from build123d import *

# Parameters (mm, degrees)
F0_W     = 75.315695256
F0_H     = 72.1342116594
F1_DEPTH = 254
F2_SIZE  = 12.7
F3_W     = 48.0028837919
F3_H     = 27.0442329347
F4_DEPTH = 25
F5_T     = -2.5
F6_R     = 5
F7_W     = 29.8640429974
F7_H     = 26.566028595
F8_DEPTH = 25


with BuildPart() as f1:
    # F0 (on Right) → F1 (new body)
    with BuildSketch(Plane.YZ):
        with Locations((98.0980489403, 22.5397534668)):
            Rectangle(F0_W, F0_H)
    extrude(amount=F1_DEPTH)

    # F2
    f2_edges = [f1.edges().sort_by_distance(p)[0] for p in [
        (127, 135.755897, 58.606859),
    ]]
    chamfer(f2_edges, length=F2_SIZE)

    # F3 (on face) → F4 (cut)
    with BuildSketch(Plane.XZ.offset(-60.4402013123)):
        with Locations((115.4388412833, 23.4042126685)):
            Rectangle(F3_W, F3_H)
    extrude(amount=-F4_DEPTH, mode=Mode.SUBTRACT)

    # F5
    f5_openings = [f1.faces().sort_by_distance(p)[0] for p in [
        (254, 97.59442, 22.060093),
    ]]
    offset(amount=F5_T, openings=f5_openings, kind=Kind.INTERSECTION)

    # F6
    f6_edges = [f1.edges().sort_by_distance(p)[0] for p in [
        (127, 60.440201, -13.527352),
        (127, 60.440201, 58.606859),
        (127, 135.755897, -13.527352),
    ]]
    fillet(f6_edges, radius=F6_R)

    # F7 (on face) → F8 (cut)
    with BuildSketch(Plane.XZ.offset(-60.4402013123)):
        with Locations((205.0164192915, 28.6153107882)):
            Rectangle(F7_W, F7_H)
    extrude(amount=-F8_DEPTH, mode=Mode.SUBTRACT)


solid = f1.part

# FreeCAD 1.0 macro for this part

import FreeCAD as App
import Part
import Sketcher

V = App.Vector
Q = App.Units.Quantity


def edges_at(feature, points):
    """Names of the edges that pass closest to the given points."""
    edges = feature.Shape.Edges
    near = lambda p: min(range(len(edges)), key=lambda i: edges[i].distToShape(Part.Vertex(*p))[0])
    return sorted({f"Edge{near(p) + 1}" for p in points})


def faces_at(feature, points):
    """Names of the faces that lie closest to the given points."""
    faces = feature.Shape.Faces
    near = lambda p: min(range(len(faces)), key=lambda i: faces[i].distToShape(Part.Vertex(*p))[0])
    return sorted({f"Face{near(p) + 1}" for p in points})

doc = App.newDocument("Part")
body = doc.addObject("PartDesign::Body", "Body")

sketch1 = doc.addObject("Sketcher::SketchObject", "Sketch")
body.addObject(sketch1)
sketch1.AttachmentSupport = (doc.YZ_Plane, [""])
sketch1.MapMode = "FlatFace"
sketch1.addGeometry([
    Part.LineSegment(V(60.440201, 58.606859, 0), V(60.440201, -13.527352, 0)),
    Part.LineSegment(V(60.440201, -13.527352, 0), V(135.755897, -13.527352, 0)),
    Part.LineSegment(V(135.755897, -13.527352, 0), V(135.755897, 58.606859, 0)),
    Part.LineSegment(V(135.755897, 58.606859, 0), V(60.440201, 58.606859, 0)),
], False)
sketch1.addConstraint([
    Sketcher.Constraint("Coincident", 0, 2, 1, 1),
    Sketcher.Constraint("Coincident", 1, 2, 2, 1),
    Sketcher.Constraint("Coincident", 2, 2, 3, 1),
    Sketcher.Constraint("Coincident", 3, 2, 0, 1),
    Sketcher.Constraint("Vertical", 0),
    Sketcher.Constraint("Horizontal", 1),
    Sketcher.Constraint("Vertical", 2),
    Sketcher.Constraint("Horizontal", 3),
    Sketcher.Constraint("DistanceY", 0, 2, 0, 1, Q("72.134212 mm")),
    Sketcher.Constraint("DistanceX", -1, 1, 0, 2, Q("60.440201 mm")),
    Sketcher.Constraint("DistanceX", 1, 1, 1, 2, Q("75.315695 mm")),
    Sketcher.Constraint("DistanceY", -1, 1, 2, 2, Q("58.606859 mm")),
])
pad1 = doc.addObject("PartDesign::Pad", "Pad")
body.addObject(pad1)
pad1.Profile = sketch1
pad1.Length = 254
doc.recompute()

chamfer = doc.addObject("PartDesign::Chamfer", "Chamfer")
body.addObject(chamfer)
chamfer.Base = (pad1, edges_at(pad1, [(127, 135.756, 58.607)]))
chamfer.Size = 12.7

sketch2 = doc.addObject("Sketcher::SketchObject", "Sketch001")
body.addObject(sketch2)
sketch2.AttachmentSupport = (doc.XZ_Plane, [""])
sketch2.MapMode = "FlatFace"
sketch2.AttachmentOffset = App.Placement(V(0, 0, -60.440201), App.Rotation())
sketch2.addGeometry([
    Part.LineSegment(V(91.437399, 36.926329, 0), V(91.437399, 9.882096, 0)),
    Part.LineSegment(V(91.437399, 9.882096, 0), V(139.440283, 9.882096, 0)),
    Part.LineSegment(V(139.440283, 9.882096, 0), V(139.440283, 36.926329, 0)),
    Part.LineSegment(V(139.440283, 36.926329, 0), V(91.437399, 36.926329, 0)),
], False)
sketch2.addConstraint([
    Sketcher.Constraint("Coincident", 0, 2, 1, 1),
    Sketcher.Constraint("Coincident", 1, 2, 2, 1),
    Sketcher.Constraint("Coincident", 2, 2, 3, 1),
    Sketcher.Constraint("Coincident", 3, 2, 0, 1),
    Sketcher.Constraint("Vertical", 0),
    Sketcher.Constraint("Horizontal", 1),
    Sketcher.Constraint("Vertical", 2),
    Sketcher.Constraint("Horizontal", 3),
    Sketcher.Constraint("DistanceX", -1, 1, 0, 2, Q("91.437399 mm")),
    Sketcher.Constraint("DistanceX", 1, 1, 1, 2, Q("48.002884 mm")),
    Sketcher.Constraint("DistanceY", 0, 2, 0, 1, Q("27.044233 mm")),
    Sketcher.Constraint("DistanceY", -1, 1, 2, 2, Q("36.926329 mm")),
])
pocket1 = doc.addObject("PartDesign::Pocket", "Pocket")
body.addObject(pocket1)
pocket1.Profile = sketch2
pocket1.Length = 25
doc.recompute()

thickness = doc.addObject("PartDesign::Thickness", "Thickness")
body.addObject(thickness)
thickness.Base = (pocket1, faces_at(pocket1, [(254, 98.098, 22.54)]))
thickness.Value = 2.5
thickness.Reversed = True
thickness.Join = "Intersection"
doc.recompute()

fillet = doc.addObject("PartDesign::Fillet", "Fillet")
body.addObject(fillet)
fillet.Base = (thickness, edges_at(thickness, [(127, 60.44, -13.527), (127, 60.44, 58.607), (127, 135.756, -13.527)]))
fillet.Radius = 5

sketch3 = doc.addObject("Sketcher::SketchObject", "Sketch002")
body.addObject(sketch3)
sketch3.AttachmentSupport = (doc.XZ_Plane, [""])
sketch3.MapMode = "FlatFace"
sketch3.AttachmentOffset = App.Placement(V(0, 0, -60.440201), App.Rotation())
sketch3.addGeometry([
    Part.LineSegment(V(190.084398, 41.898325, 0), V(190.084398, 15.332296, 0)),
    Part.LineSegment(V(190.084398, 15.332296, 0), V(219.948441, 15.332296, 0)),
    Part.LineSegment(V(219.948441, 15.332296, 0), V(219.948441, 41.898325, 0)),
    Part.LineSegment(V(219.948441, 41.898325, 0), V(190.084398, 41.898325, 0)),
], False)
sketch3.addConstraint([
    Sketcher.Constraint("Coincident", 0, 2, 1, 1),
    Sketcher.Constraint("Coincident", 1, 2, 2, 1),
    Sketcher.Constraint("Coincident", 2, 2, 3, 1),
    Sketcher.Constraint("Coincident", 3, 2, 0, 1),
    Sketcher.Constraint("Vertical", 0),
    Sketcher.Constraint("Horizontal", 1),
    Sketcher.Constraint("Vertical", 2),
    Sketcher.Constraint("Horizontal", 3),
    Sketcher.Constraint("DistanceY", 0, 2, 0, 1, Q("26.566029 mm")),
    Sketcher.Constraint("DistanceX", 1, 1, 1, 2, Q("29.864043 mm")),
    Sketcher.Constraint("DistanceX", -1, 1, 1, 2, Q("219.948441 mm")),
    Sketcher.Constraint("DistanceY", -1, 1, 0, 2, Q("15.332296 mm")),
])
pocket2 = doc.addObject("PartDesign::Pocket", "Pocket001")
body.addObject(pocket2)
pocket2.Profile = sketch3
pocket2.Length = 25

doc.recompute()
